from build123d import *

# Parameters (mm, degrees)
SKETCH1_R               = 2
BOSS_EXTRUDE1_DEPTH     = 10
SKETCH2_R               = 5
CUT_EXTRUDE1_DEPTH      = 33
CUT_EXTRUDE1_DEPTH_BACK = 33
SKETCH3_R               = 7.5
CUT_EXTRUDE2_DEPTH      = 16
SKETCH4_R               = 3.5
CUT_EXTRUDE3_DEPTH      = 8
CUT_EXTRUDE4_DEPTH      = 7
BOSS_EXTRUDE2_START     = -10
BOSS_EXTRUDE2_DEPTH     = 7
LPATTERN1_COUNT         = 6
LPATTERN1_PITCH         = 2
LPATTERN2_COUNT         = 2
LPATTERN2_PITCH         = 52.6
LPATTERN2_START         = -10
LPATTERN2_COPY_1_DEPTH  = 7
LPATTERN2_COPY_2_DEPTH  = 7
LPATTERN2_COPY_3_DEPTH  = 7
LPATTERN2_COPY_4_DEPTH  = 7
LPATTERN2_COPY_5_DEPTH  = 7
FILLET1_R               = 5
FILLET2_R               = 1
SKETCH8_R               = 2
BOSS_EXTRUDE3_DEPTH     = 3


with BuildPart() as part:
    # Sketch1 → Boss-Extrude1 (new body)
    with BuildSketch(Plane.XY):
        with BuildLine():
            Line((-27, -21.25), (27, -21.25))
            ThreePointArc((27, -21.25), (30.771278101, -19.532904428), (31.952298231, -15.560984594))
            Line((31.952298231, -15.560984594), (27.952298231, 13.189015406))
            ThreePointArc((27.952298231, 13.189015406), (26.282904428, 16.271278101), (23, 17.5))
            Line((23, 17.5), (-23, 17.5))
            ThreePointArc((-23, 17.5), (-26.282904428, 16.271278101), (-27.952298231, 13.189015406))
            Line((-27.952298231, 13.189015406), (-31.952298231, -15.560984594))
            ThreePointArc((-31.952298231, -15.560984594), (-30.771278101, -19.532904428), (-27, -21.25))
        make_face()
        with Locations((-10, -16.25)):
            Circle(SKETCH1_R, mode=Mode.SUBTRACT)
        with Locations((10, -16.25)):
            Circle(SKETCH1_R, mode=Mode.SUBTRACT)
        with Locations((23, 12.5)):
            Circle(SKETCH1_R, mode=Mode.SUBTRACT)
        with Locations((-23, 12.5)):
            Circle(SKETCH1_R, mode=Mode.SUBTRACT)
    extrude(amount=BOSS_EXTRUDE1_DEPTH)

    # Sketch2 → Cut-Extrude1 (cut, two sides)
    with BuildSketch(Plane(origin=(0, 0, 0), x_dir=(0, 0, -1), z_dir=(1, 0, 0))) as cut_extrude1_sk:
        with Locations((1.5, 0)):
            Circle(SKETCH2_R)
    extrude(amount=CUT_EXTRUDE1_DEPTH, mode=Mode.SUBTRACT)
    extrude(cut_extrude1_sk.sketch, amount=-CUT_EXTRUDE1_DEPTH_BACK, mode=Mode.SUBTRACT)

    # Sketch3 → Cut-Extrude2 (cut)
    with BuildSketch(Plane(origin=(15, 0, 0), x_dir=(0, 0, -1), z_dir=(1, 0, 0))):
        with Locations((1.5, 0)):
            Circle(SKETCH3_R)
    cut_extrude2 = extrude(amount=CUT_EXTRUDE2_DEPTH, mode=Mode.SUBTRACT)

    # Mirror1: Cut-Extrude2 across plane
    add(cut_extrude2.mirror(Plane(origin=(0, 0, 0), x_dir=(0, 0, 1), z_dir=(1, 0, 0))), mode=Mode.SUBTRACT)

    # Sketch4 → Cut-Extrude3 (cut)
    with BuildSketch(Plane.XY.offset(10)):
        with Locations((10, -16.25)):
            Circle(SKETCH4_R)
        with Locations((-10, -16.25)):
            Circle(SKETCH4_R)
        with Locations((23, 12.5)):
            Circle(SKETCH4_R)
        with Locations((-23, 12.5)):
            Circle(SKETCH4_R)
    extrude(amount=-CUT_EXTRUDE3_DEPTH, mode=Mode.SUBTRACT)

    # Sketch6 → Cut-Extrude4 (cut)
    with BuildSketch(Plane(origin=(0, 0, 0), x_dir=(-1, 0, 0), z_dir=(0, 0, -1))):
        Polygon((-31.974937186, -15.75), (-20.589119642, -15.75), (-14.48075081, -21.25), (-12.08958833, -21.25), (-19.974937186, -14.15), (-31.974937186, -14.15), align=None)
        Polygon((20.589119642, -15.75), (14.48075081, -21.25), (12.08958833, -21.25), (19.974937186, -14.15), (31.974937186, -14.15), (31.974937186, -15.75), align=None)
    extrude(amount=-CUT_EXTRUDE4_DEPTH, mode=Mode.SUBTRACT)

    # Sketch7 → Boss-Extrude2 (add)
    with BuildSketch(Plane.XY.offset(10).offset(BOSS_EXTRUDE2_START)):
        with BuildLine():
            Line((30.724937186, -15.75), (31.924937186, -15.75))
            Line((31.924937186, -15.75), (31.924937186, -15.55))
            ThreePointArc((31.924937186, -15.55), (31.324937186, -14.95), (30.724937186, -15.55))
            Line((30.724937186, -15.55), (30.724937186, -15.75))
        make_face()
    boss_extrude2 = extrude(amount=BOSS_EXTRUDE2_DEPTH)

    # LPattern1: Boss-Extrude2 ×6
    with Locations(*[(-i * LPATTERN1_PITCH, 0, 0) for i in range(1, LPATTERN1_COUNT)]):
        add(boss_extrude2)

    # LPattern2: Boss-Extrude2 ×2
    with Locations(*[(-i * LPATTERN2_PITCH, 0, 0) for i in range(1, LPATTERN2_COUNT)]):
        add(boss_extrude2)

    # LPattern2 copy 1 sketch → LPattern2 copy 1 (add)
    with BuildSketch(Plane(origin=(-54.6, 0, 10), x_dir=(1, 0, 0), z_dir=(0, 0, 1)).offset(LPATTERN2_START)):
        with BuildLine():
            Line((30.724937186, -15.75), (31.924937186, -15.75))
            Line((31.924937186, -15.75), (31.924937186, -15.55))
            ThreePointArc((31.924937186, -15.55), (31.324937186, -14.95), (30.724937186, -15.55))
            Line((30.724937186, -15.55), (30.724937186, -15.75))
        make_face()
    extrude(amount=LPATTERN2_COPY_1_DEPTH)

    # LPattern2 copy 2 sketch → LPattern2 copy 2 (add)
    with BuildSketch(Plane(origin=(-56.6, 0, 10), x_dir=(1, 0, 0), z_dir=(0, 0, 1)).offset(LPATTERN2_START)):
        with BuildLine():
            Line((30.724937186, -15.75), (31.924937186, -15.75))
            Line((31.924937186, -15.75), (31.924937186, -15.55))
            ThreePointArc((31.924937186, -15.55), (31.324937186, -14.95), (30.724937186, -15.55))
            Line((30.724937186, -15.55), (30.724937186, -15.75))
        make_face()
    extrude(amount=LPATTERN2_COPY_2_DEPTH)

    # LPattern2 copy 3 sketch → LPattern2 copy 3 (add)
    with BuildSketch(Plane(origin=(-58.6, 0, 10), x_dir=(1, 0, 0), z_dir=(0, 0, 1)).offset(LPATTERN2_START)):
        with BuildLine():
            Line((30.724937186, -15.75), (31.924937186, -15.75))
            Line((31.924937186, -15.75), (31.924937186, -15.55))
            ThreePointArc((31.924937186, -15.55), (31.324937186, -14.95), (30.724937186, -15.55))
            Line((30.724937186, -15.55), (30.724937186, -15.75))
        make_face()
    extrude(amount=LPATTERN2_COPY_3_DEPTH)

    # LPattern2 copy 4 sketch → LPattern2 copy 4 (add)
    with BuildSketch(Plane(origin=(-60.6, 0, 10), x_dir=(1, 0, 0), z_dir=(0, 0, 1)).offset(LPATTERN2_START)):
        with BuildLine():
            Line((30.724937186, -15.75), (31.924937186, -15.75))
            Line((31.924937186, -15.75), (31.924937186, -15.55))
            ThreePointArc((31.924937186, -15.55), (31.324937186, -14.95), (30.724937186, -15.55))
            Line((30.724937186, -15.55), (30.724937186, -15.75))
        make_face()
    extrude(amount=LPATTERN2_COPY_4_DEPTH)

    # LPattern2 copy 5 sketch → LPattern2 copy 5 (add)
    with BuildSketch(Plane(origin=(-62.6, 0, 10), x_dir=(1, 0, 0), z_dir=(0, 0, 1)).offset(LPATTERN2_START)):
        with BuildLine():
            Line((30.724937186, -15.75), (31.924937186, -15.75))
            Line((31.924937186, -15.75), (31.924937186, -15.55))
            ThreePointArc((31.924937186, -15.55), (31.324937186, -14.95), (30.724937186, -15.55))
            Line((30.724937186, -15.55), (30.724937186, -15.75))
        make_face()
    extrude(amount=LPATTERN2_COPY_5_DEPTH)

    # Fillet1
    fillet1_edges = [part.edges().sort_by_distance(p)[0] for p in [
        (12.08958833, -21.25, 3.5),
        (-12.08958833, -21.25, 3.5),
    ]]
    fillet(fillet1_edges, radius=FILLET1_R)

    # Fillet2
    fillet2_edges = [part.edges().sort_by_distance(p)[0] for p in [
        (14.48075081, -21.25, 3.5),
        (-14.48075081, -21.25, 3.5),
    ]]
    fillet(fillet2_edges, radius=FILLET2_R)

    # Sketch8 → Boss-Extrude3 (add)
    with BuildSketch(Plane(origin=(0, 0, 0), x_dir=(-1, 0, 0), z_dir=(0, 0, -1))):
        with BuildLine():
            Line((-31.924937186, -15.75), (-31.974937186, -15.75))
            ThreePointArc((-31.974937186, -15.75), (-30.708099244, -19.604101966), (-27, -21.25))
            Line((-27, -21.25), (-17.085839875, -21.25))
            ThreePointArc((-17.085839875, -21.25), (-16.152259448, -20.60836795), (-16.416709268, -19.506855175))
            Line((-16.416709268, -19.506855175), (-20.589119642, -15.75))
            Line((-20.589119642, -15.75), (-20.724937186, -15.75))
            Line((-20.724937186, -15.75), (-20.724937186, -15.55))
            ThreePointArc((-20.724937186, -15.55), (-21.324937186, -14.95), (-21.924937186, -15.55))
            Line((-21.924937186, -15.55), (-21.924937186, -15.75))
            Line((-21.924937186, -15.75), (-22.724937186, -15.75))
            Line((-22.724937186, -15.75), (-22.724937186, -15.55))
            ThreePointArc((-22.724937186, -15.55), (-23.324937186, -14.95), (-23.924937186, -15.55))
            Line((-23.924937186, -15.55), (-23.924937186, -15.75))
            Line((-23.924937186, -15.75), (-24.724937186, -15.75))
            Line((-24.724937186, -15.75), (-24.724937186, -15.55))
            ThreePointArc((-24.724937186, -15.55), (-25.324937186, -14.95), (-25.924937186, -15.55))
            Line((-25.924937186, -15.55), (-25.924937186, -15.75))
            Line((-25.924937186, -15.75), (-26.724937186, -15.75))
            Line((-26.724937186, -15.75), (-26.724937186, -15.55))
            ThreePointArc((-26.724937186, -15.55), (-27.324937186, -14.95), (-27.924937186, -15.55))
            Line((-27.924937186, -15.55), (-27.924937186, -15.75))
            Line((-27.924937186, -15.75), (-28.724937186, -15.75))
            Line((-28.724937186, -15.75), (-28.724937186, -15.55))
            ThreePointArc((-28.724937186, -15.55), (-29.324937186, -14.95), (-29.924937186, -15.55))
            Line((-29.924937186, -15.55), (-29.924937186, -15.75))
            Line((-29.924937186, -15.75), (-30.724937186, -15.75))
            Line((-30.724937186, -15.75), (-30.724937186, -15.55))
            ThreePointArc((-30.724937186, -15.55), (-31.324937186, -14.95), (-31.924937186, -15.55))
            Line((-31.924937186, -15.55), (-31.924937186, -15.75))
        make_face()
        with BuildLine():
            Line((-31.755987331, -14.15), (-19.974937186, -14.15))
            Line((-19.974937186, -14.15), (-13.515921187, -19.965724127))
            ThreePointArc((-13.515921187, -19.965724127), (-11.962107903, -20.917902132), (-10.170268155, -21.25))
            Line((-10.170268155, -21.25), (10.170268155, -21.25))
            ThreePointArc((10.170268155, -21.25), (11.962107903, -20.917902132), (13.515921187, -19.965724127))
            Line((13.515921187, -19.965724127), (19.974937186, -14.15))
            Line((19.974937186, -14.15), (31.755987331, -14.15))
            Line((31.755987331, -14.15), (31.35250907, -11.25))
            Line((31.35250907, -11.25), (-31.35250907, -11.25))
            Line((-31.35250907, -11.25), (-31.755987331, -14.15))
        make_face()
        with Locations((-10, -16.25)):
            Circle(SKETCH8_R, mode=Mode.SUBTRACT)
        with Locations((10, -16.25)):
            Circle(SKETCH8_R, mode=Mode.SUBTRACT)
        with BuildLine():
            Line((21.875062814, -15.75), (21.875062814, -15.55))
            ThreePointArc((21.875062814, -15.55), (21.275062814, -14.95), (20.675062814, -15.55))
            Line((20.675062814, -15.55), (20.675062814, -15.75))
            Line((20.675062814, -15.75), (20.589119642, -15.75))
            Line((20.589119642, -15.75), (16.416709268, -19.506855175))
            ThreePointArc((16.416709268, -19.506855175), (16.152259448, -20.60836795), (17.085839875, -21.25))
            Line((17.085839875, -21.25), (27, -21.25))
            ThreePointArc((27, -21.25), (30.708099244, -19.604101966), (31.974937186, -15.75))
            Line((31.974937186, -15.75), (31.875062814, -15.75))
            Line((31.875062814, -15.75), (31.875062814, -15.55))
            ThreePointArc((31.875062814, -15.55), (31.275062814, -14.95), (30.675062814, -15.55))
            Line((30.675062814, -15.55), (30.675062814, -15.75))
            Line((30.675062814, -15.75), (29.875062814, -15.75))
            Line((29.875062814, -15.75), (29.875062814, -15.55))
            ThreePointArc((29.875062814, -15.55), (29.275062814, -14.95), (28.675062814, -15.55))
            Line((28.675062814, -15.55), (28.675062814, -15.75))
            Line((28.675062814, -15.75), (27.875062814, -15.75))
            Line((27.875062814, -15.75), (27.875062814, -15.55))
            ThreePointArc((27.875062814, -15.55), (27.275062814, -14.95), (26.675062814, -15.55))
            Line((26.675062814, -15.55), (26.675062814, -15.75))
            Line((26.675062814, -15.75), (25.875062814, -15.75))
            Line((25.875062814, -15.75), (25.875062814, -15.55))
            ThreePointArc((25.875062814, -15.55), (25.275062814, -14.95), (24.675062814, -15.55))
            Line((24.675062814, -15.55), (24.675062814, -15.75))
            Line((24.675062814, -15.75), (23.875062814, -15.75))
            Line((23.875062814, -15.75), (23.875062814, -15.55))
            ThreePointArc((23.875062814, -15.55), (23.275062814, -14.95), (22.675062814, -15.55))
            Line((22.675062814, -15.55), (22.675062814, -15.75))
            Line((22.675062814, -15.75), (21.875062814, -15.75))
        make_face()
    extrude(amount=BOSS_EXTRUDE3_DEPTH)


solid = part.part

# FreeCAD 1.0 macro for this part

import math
import FreeCAD as App
import Part
import Sketcher
Q = App.Units.Quantity


def edges_at(feature, points):
    """Names of the edges that pass closest to the given points."""
    edges = feature.Shape.Edges
    near = lambda p: min(range(len(edges)), key=lambda i: edges[i].distToShape(Part.Vertex(*p))[0])
    return sorted({f"Edge{near(p) + 1}" for p in points})


def add_polygon(sketch, points):
    """Adds a closed chain of lines whose ends are joined by coincident constraints."""
    first, n = sketch.GeometryCount, len(points)
    for a, b in zip(points, points[1:] + points[:1]):
        sketch.addGeometry(Part.LineSegment(App.Vector(*a, 0), App.Vector(*b, 0)), False)
    for i in range(n):
        sketch.addConstraint(Sketcher.Constraint("Coincident", first + i, 2, first + (i + 1) % n, 1))

doc = App.newDocument("Part")
body = doc.addObject("PartDesign::Body", "Body")

sketch1 = body.newObject("Sketcher::SketchObject", "Sketch")
sketch1.AttachmentSupport = (doc.getObject("XY_Plane"), [""])
sketch1.MapMode = "FlatFace"
sketch1.addGeometry(Part.LineSegment(App.Vector(-27, -21.2, 0), App.Vector(27, -21.2, 0)), False)
sketch1.addGeometry(Part.ArcOfCircle(Part.Circle(App.Vector(27, -16.2, 0), App.Vector(0, 0, 1), 5), math.radians(-90), math.radians(8)), False)
sketch1.addGeometry(Part.LineSegment(App.Vector(32, -15.6, 0), App.Vector(28, 13.2, 0)), False)
sketch1.addGeometry(Part.ArcOfCircle(Part.Circle(App.Vector(23, 12.5, 0), App.Vector(0, 0, 1), 5), math.radians(8), math.radians(90)), False)
sketch1.addGeometry(Part.LineSegment(App.Vector(23, 17.5, 0), App.Vector(-23, 17.5, 0)), False)
sketch1.addGeometry(Part.ArcOfCircle(Part.Circle(App.Vector(-23, 12.5, 0), App.Vector(0, 0, 1), 5), math.radians(90), math.radians(172)), False)
sketch1.addGeometry(Part.LineSegment(App.Vector(-28, 13.2, 0), App.Vector(-32, -15.6, 0)), False)
sketch1.addGeometry(Part.ArcOfCircle(Part.Circle(App.Vector(-27, -16.2, 0), App.Vector(0, 0, 1), 5), math.radians(172), math.radians(270)), False)
sketch1.addGeometry(Part.Circle(App.Vector(-10, -16.2, 0), App.Vector(0, 0, 1), 2), False)
sketch1.addGeometry(Part.Circle(App.Vector(10, -16.2, 0), App.Vector(0, 0, 1), 2), False)
sketch1.addGeometry(Part.Circle(App.Vector(-23, 12.5, 0), App.Vector(0, 0, 1), 2), False)
sketch1.addGeometry(Part.Circle(App.Vector(23, 12.5, 0), App.Vector(0, 0, 1), 2), False)
sketch1.addConstraint(Sketcher.Constraint("Tangent", 0, 2, 1, 1))
sketch1.addConstraint(Sketcher.Constraint("Tangent", 1, 2, 2, 1))
sketch1.addConstraint(Sketcher.Constraint("Tangent", 2, 2, 3, 1))
sketch1.addConstraint(Sketcher.Constraint("Tangent", 3, 2, 4, 1))
sketch1.addConstraint(Sketcher.Constraint("Tangent", 4, 2, 5, 1))
sketch1.addConstraint(Sketcher.Constraint("Tangent", 5, 2, 6, 1))
sketch1.addConstraint(Sketcher.Constraint("Tangent", 6, 2, 7, 1))
sketch1.addConstraint(Sketcher.Constraint("Tangent", 7, 2, 0, 1))
sketch1.addConstraint(Sketcher.Constraint("Horizontal", 0))
sketch1.addConstraint(Sketcher.Constraint("Horizontal", 4))
sketch1.addConstraint(Sketcher.Constraint("Coincident", 10, 3, 5, 3))
sketch1.addConstraint(Sketcher.Constraint("Coincident", 11, 3, 3, 3))
sketch1.addConstraint(Sketcher.Constraint("Equal", 1, 3))
sketch1.addConstraint(Sketcher.Constraint("Equal", 3, 5))
sketch1.addConstraint(Sketcher.Constraint("Equal", 5, 7))
sketch1.addConstraint(Sketcher.Constraint("Equal", 8, 9))
sketch1.addConstraint(Sketcher.Constraint("Equal", 9, 10))
sketch1.addConstraint(Sketcher.Constraint("Equal", 10, 11))
sketch1.addConstraint(Sketcher.Constraint("Symmetric", 8, 3, 9, 3, -2))
sketch1.addConstraint(Sketcher.Constraint("Symmetric", 2, 2, 5, 2, -2))
sketch1.addConstraint(Sketcher.Constraint("Horizontal", 7, 3, 8, 3))
sketch1.addConstraint(Sketcher.Constraint("Diameter", 8, Q("4 mm")))
sketch1.addConstraint(Sketcher.Constraint("Radius", 1, Q("5 mm")))
sketch1.addConstraint(Sketcher.Constraint("DistanceX", 0, 1, 0, 2, Q("54 mm")))
sketch1.addConstraint(Sketcher.Constraint("DistanceX", 4, 2, 4, 1, Q("46 mm")))
sketch1.addConstraint(Sketcher.Constraint("DistanceX", 8, 3, -1, 1, Q("10 mm")))
sketch1.addConstraint(Sketcher.Constraint("DistanceY", -1, 1, 3, 3, Q("12.5 mm")))
sketch1.addConstraint(Sketcher.Constraint("DistanceY", 1, 3, -1, 1, Q("16.25 mm")))
pad1 = body.newObject("PartDesign::Pad", "Pad")
pad1.Profile = sketch1
pad1.Length = 10

sketch2 = body.newObject("Sketcher::SketchObject", "Sketch001")
sketch2.AttachmentSupport = (doc.getObject("YZ_Plane"), [""])
sketch2.MapMode = "FlatFace"
sketch2.addGeometry(Part.Circle(App.Vector(0, -2, 0), App.Vector(0, 0, 1), 5), False)
sketch2.addConstraint(Sketcher.Constraint("PointOnObject", 0, 3, -2))
sketch2.addConstraint(Sketcher.Constraint("Diameter", 0, Q("10 mm")))
sketch2.addConstraint(Sketcher.Constraint("DistanceY", 0, 3, -1, 1, Q("1.5 mm")))
pocket1 = body.newObject("PartDesign::Pocket", "Pocket")
pocket1.Profile = sketch2
pocket1.Type = "ThroughAll"
pocket1.Midplane = True

sketch3 = body.newObject("Sketcher::SketchObject", "Sketch002")
sketch3.AttachmentSupport = (doc.getObject("YZ_Plane"), [""])
sketch3.MapMode = "FlatFace"
sketch3.AttachmentOffset = App.Placement(App.Vector(0, 0, 15), App.Rotation())
sketch3.addGeometry(Part.Circle(App.Vector(0, -2, 0), App.Vector(0, 0, 1), 8), False)
sketch3.addConstraint(Sketcher.Constraint("PointOnObject", 0, 3, -2))
sketch3.addConstraint(Sketcher.Constraint("Diameter", 0, Q("15 mm")))
sketch3.addConstraint(Sketcher.Constraint("DistanceY", 0, 3, -1, 1, Q("1.5 mm")))
pocket2 = body.newObject("PartDesign::Pocket", "Pocket001")
pocket2.Profile = sketch3
pocket2.Length = 16
pocket2.Reversed = True
doc.recompute()

mirrored = body.newObject("PartDesign::Mirrored", "Mirrored")
mirrored.Originals = [pocket2]
mirrored.MirrorPlane = (doc.getObject("YZ_Plane"), [""])
body.Tip = mirrored

sketch4 = body.newObject("Sketcher::SketchObject", "Sketch003")
sketch4.AttachmentSupport = (doc.getObject("XY_Plane"), [""])
sketch4.MapMode = "FlatFace"
sketch4.AttachmentOffset = App.Placement(App.Vector(0, 0, 10), App.Rotation())
sketch4.addGeometry(Part.Circle(App.Vector(10, -16.2, 0), App.Vector(0, 0, 1), 3.5), False)
sketch4.addGeometry(Part.Circle(App.Vector(-10, -16.2, 0), App.Vector(0, 0, 1), 3.5), False)
sketch4.addGeometry(Part.Circle(App.Vector(23, 12.5, 0), App.Vector(0, 0, 1), 3.5), False)
sketch4.addGeometry(Part.Circle(App.Vector(-23, 12.5, 0), App.Vector(0, 0, 1), 3.5), False)
sketch4.addConstraint(Sketcher.Constraint("Equal", 0, 1))
sketch4.addConstraint(Sketcher.Constraint("Equal", 1, 2))
sketch4.addConstraint(Sketcher.Constraint("Equal", 2, 3))
sketch4.addConstraint(Sketcher.Constraint("Symmetric", 0, 3, 1, 3, -2))
sketch4.addConstraint(Sketcher.Constraint("Symmetric", 2, 3, 3, 3, -2))
sketch4.addConstraint(Sketcher.Constraint("Diameter", 0, Q("7 mm")))
sketch4.addConstraint(Sketcher.Constraint("DistanceX", -1, 1, 0, 3, Q("10 mm")))
sketch4.addConstraint(Sketcher.Constraint("DistanceX", -1, 1, 2, 3, Q("23 mm")))
sketch4.addConstraint(Sketcher.Constraint("DistanceY", -1, 1, 2, 3, Q("12.5 mm")))
sketch4.addConstraint(Sketcher.Constraint("DistanceY", 0, 3, -1, 1, Q("16.25 mm")))
pocket3 = body.newObject("PartDesign::Pocket", "Pocket002")
pocket3.Profile = sketch4
pocket3.Length = 8

sketch5 = body.newObject("Sketcher::SketchObject", "Sketch004")
sketch5.AttachmentSupport = (doc.getObject("XY_Plane"), [""])
sketch5.MapMode = "FlatFace"
add_polygon(sketch5, [(32, -15.8), (20.6, -15.8), (14.5, -21.2), (12.1, -21.2), (20, -14.2), (32, -14.2)])
add_polygon(sketch5, [(-14.5, -21.2), (-20.6, -15.8), (-32, -15.8), (-32, -14.2), (-20, -14.2), (-12.1, -21.2)])
sketch5.addConstraint(Sketcher.Constraint("Horizontal", 0))
sketch5.addConstraint(Sketcher.Constraint("Horizontal", 2))
sketch5.addConstraint(Sketcher.Constraint("Horizontal", 4))
sketch5.addConstraint(Sketcher.Constraint("Vertical", 5))
sketch5.addConstraint(Sketcher.Constraint("Horizontal", 7))
sketch5.addConstraint(Sketcher.Constraint("Vertical", 8))
sketch5.addConstraint(Sketcher.Constraint("Horizontal", 9))
sketch5.addConstraint(Sketcher.Constraint("Horizontal", 11))
sketch5.addConstraint(Sketcher.Constraint("Symmetric", 0, 2, 6, 2, -2))
sketch5.addConstraint(Sketcher.Constraint("Symmetric", 4, 2, 8, 2, -2))
sketch5.addConstraint(Sketcher.Constraint("Symmetric", 2, 2, 10, 2, -2))
sketch5.addConstraint(Sketcher.Constraint("Parallel", 1, 3))
sketch5.addConstraint(Sketcher.Constraint("Parallel", 6, 10))
sketch5.addConstraint(Sketcher.Constraint("Equal", 4, 9))
sketch5.addConstraint(Sketcher.Constraint("DistanceX", 4, 1, 4, 2, Q("12 mm")))
sketch5.addConstraint(Sketcher.Constraint("Angle", 1, Q("-138 deg")))
sketch5.addConstraint(Sketcher.Constraint("DistanceY", 5, 2, 5, 1, Q("1.6 mm")))
sketch5.addConstraint(Sketcher.Constraint("DistanceY", 1, 2, 0, 2, Q("5.5 mm")))
sketch5.addConstraint(Sketcher.Constraint("DistanceY", 0, 2, -1, 1, Q("15.75 mm")))
sketch5.addConstraint(Sketcher.Constraint("DistanceX", 0, 2, 0, 1, Q("11.385818 mm")))
sketch5.addConstraint(Sketcher.Constraint("DistanceX", -1, 1, 0, 2, Q("20.58912 mm")))
pocket4 = body.newObject("PartDesign::Pocket", "Pocket003")
pocket4.Profile = sketch5
pocket4.Length = 7
pocket4.Reversed = True

sketch6 = body.newObject("Sketcher::SketchObject", "Sketch005")
sketch6.AttachmentSupport = (doc.getObject("XY_Plane"), [""])
sketch6.MapMode = "FlatFace"
sketch6.addGeometry(Part.LineSegment(App.Vector(30.72, -15.75, 0), App.Vector(31.92, -15.75, 0)), False)
sketch6.addGeometry(Part.LineSegment(App.Vector(31.92, -15.75, 0), App.Vector(31.92, -15.55, 0)), False)
sketch6.addGeometry(Part.ArcOfCircle(Part.Circle(App.Vector(31.32, -15.55, 0), App.Vector(0, 0, 1), 0.6), math.radians(0), math.radians(180)), False)
sketch6.addGeometry(Part.LineSegment(App.Vector(30.72, -15.55, 0), App.Vector(30.72, -15.75, 0)), False)
sketch6.addConstraint(Sketcher.Constraint("Coincident", 0, 2, 1, 1))
sketch6.addConstraint(Sketcher.Constraint("Tangent", 1, 2, 2, 1))
sketch6.addConstraint(Sketcher.Constraint("Tangent", 2, 2, 3, 1))
sketch6.addConstraint(Sketcher.Constraint("Coincident", 3, 2, 0, 1))
sketch6.addConstraint(Sketcher.Constraint("Horizontal", 0))
sketch6.addConstraint(Sketcher.Constraint("Vertical", 1))
sketch6.addConstraint(Sketcher.Constraint("Vertical", 3))
sketch6.addConstraint(Sketcher.Constraint("Radius", 2, Q("0.6 mm")))
sketch6.addConstraint(Sketcher.Constraint("DistanceY", 1, 1, 1, 2, Q("0.2 mm")))
sketch6.addConstraint(Sketcher.Constraint("DistanceY", 2, 3, -1, 1, Q("15.55 mm")))
sketch6.addConstraint(Sketcher.Constraint("DistanceX", -1, 1, 2, 3, Q("31.324937 mm")))
pad2 = body.newObject("PartDesign::Pad", "Pad001")
pad2.Profile = sketch6
pad2.Length = 7
doc.recompute()

linearpattern = body.newObject("PartDesign::LinearPattern", "LinearPattern")
linearpattern.Originals = [pad2]
linearpattern.Direction = (doc.getObject("X_Axis"), [""])
linearpattern.Mode = "offset"
linearpattern.Offset = 2
linearpattern.Occurrences = 6
linearpattern.Reversed = True
body.Tip = linearpattern
doc.recompute()

linearpattern2 = body.newObject("PartDesign::LinearPattern", "LinearPattern001")
linearpattern2.Originals = [pad2]
linearpattern2.Direction = (doc.getObject("X_Axis"), [""])
linearpattern2.Mode = "offset"
linearpattern2.Offset = 52.6
linearpattern2.Occurrences = 2
linearpattern2.Reversed = True
body.Tip = linearpattern2

sketch7 = body.newObject("Sketcher::SketchObject", "Sketch006")
sketch7.AttachmentSupport = (doc.getObject("XY_Plane"), [""])
sketch7.MapMode = "FlatFace"
sketch7.addGeometry(Part.LineSegment(App.Vector(-23.88, -15.75, 0), App.Vector(-22.68, -15.75, 0)), False)
sketch7.addGeometry(Part.LineSegment(App.Vector(-22.68, -15.75, 0), App.Vector(-22.68, -15.55, 0)), False)
sketch7.addGeometry(Part.ArcOfCircle(Part.Circle(App.Vector(-23.28, -15.55, 0), App.Vector(0, 0, 1), 0.6), math.radians(0), math.radians(180)), False)
sketch7.addGeometry(Part.LineSegment(App.Vector(-23.88, -15.55, 0), App.Vector(-23.88, -15.75, 0)), False)
sketch7.addConstraint(Sketcher.Constraint("Coincident", 0, 2, 1, 1))
sketch7.addConstraint(Sketcher.Constraint("Tangent", 1, 2, 2, 1))
sketch7.addConstraint(Sketcher.Constraint("Tangent", 2, 2, 3, 1))
sketch7.addConstraint(Sketcher.Constraint("Coincident", 3, 2, 0, 1))
sketch7.addConstraint(Sketcher.Constraint("Horizontal", 0))
sketch7.addConstraint(Sketcher.Constraint("Vertical", 1))
sketch7.addConstraint(Sketcher.Constraint("Vertical", 3))
sketch7.addConstraint(Sketcher.Constraint("Radius", 2, Q("0.6 mm")))
sketch7.addConstraint(Sketcher.Constraint("DistanceY", 1, 1, 1, 2, Q("0.2 mm")))
sketch7.addConstraint(Sketcher.Constraint("DistanceY", 2, 3, -1, 1, Q("15.55 mm")))
sketch7.addConstraint(Sketcher.Constraint("DistanceX", 2, 3, -1, 1, Q("23.275063 mm")))
pad3 = body.newObject("PartDesign::Pad", "Pad002")
pad3.Profile = sketch7
pad3.Length = 7

sketch8 = body.newObject("Sketcher::SketchObject", "Sketch007")
sketch8.AttachmentSupport = (doc.getObject("XY_Plane"), [""])
sketch8.MapMode = "FlatFace"
sketch8.addGeometry(Part.LineSegment(App.Vector(-25.88, -15.75, 0), App.Vector(-24.68, -15.75, 0)), False)
sketch8.addGeometry(Part.LineSegment(App.Vector(-24.68, -15.75, 0), App.Vector(-24.68, -15.55, 0)), False)
sketch8.addGeometry(Part.ArcOfCircle(Part.Circle(App.Vector(-25.28, -15.55, 0), App.Vector(0, 0, 1), 0.6), math.radians(0), math.radians(180)), False)
sketch8.addGeometry(Part.LineSegment(App.Vector(-25.88, -15.55, 0), App.Vector(-25.88, -15.75, 0)), False)
sketch8.addConstraint(Sketcher.Constraint("Coincident", 0, 2, 1, 1))
sketch8.addConstraint(Sketcher.Constraint("Tangent", 1, 2, 2, 1))
sketch8.addConstraint(Sketcher.Constraint("Tangent", 2, 2, 3, 1))
sketch8.addConstraint(Sketcher.Constraint("Coincident", 3, 2, 0, 1))
sketch8.addConstraint(Sketcher.Constraint("Horizontal", 0))
sketch8.addConstraint(Sketcher.Constraint("Vertical", 1))
sketch8.addConstraint(Sketcher.Constraint("Vertical", 3))
sketch8.addConstraint(Sketcher.Constraint("Radius", 2, Q("0.6 mm")))
sketch8.addConstraint(Sketcher.Constraint("DistanceY", 1, 1, 1, 2, Q("0.2 mm")))
sketch8.addConstraint(Sketcher.Constraint("DistanceY", 2, 3, -1, 1, Q("15.55 mm")))
sketch8.addConstraint(Sketcher.Constraint("DistanceX", 2, 3, -1, 1, Q("25.275063 mm")))
pad4 = body.newObject("PartDesign::Pad", "Pad003")
pad4.Profile = sketch8
pad4.Length = 7

sketch9 = body.newObject("Sketcher::SketchObject", "Sketch008")
sketch9.AttachmentSupport = (doc.getObject("XY_Plane"), [""])
sketch9.MapMode = "FlatFace"
sketch9.addGeometry(Part.LineSegment(App.Vector(-27.88, -15.75, 0), App.Vector(-26.68, -15.75, 0)), False)
sketch9.addGeometry(Part.LineSegment(App.Vector(-26.68, -15.75, 0), App.Vector(-26.68, -15.55, 0)), False)
sketch9.addGeometry(Part.ArcOfCircle(Part.Circle(App.Vector(-27.28, -15.55, 0), App.Vector(0, 0, 1), 0.6), math.radians(0), math.radians(180)), False)
sketch9.addGeometry(Part.LineSegment(App.Vector(-27.88, -15.55, 0), App.Vector(-27.88, -15.75, 0)), False)
sketch9.addConstraint(Sketcher.Constraint("Coincident", 0, 2, 1, 1))
sketch9.addConstraint(Sketcher.Constraint("Tangent", 1, 2, 2, 1))
sketch9.addConstraint(Sketcher.Constraint("Tangent", 2, 2, 3, 1))
sketch9.addConstraint(Sketcher.Constraint("Coincident", 3, 2, 0, 1))
sketch9.addConstraint(Sketcher.Constraint("Horizontal", 0))
sketch9.addConstraint(Sketcher.Constraint("Vertical", 1))
sketch9.addConstraint(Sketcher.Constraint("Vertical", 3))
sketch9.addConstraint(Sketcher.Constraint("Radius", 2, Q("0.6 mm")))
sketch9.addConstraint(Sketcher.Constraint("DistanceY", 1, 1, 1, 2, Q("0.2 mm")))
sketch9.addConstraint(Sketcher.Constraint("DistanceY", 2, 3, -1, 1, Q("15.55 mm")))
sketch9.addConstraint(Sketcher.Constraint("DistanceX", 2, 3, -1, 1, Q("27.275063 mm")))
pad5 = body.newObject("PartDesign::Pad", "Pad004")
pad5.Profile = sketch9
pad5.Length = 7

sketch10 = body.newObject("Sketcher::SketchObject", "Sketch009")
sketch10.AttachmentSupport = (doc.getObject("XY_Plane"), [""])
sketch10.MapMode = "FlatFace"
sketch10.addGeometry(Part.LineSegment(App.Vector(-29.88, -15.75, 0), App.Vector(-28.68, -15.75, 0)), False)
sketch10.addGeometry(Part.LineSegment(App.Vector(-28.68, -15.75, 0), App.Vector(-28.68, -15.55, 0)), False)
sketch10.addGeometry(Part.ArcOfCircle(Part.Circle(App.Vector(-29.28, -15.55, 0), App.Vector(0, 0, 1), 0.6), math.radians(0), math.radians(180)), False)
sketch10.addGeometry(Part.LineSegment(App.Vector(-29.88, -15.55, 0), App.Vector(-29.88, -15.75, 0)), False)
sketch10.addConstraint(Sketcher.Constraint("Coincident", 0, 2, 1, 1))
sketch10.addConstraint(Sketcher.Constraint("Tangent", 1, 2, 2, 1))
sketch10.addConstraint(Sketcher.Constraint("Tangent", 2, 2, 3, 1))
sketch10.addConstraint(Sketcher.Constraint("Coincident", 3, 2, 0, 1))
sketch10.addConstraint(Sketcher.Constraint("Horizontal", 0))
sketch10.addConstraint(Sketcher.Constraint("Vertical", 1))
sketch10.addConstraint(Sketcher.Constraint("Vertical", 3))
sketch10.addConstraint(Sketcher.Constraint("Radius", 2, Q("0.6 mm")))
sketch10.addConstraint(Sketcher.Constraint("DistanceY", 1, 1, 1, 2, Q("0.2 mm")))
sketch10.addConstraint(Sketcher.Constraint("DistanceY", 2, 3, -1, 1, Q("15.55 mm")))
sketch10.addConstraint(Sketcher.Constraint("DistanceX", 2, 3, -1, 1, Q("29.275063 mm")))
pad6 = body.newObject("PartDesign::Pad", "Pad005")
pad6.Profile = sketch10
pad6.Length = 7

sketch11 = body.newObject("Sketcher::SketchObject", "Sketch010")
sketch11.AttachmentSupport = (doc.getObject("XY_Plane"), [""])
sketch11.MapMode = "FlatFace"
sketch11.addGeometry(Part.LineSegment(App.Vector(-31.88, -15.75, 0), App.Vector(-30.68, -15.75, 0)), False)
sketch11.addGeometry(Part.LineSegment(App.Vector(-30.68, -15.75, 0), App.Vector(-30.68, -15.55, 0)), False)
sketch11.addGeometry(Part.ArcOfCircle(Part.Circle(App.Vector(-31.28, -15.55, 0), App.Vector(0, 0, 1), 0.6), math.radians(0), math.radians(180)), False)
sketch11.addGeometry(Part.LineSegment(App.Vector(-31.88, -15.55, 0), App.Vector(-31.88, -15.75, 0)), False)
sketch11.addConstraint(Sketcher.Constraint("Coincident", 0, 2, 1, 1))
sketch11.addConstraint(Sketcher.Constraint("Tangent", 1, 2, 2, 1))
sketch11.addConstraint(Sketcher.Constraint("Tangent", 2, 2, 3, 1))
sketch11.addConstraint(Sketcher.Constraint("Coincident", 3, 2, 0, 1))
sketch11.addConstraint(Sketcher.Constraint("Horizontal", 0))
sketch11.addConstraint(Sketcher.Constraint("Vertical", 1))
sketch11.addConstraint(Sketcher.Constraint("Vertical", 3))
sketch11.addConstraint(Sketcher.Constraint("Radius", 2, Q("0.6 mm")))
sketch11.addConstraint(Sketcher.Constraint("DistanceY", 1, 1, 1, 2, Q("0.2 mm")))
sketch11.addConstraint(Sketcher.Constraint("DistanceY", 2, 3, -1, 1, Q("15.55 mm")))
sketch11.addConstraint(Sketcher.Constraint("DistanceX", 2, 3, -1, 1, Q("31.275063 mm")))
pad7 = body.newObject("PartDesign::Pad", "Pad006")
pad7.Profile = sketch11
pad7.Length = 7
doc.recompute()

fillet = body.newObject("PartDesign::Fillet", "Fillet")
fillet.Base = (pad7, edges_at(pad7, [(12.09, -21.25, 3.5), (-12.09, -21.25, 3.5)]))
fillet.Radius = 5
doc.recompute()

fillet2 = body.newObject("PartDesign::Fillet", "Fillet001")
fillet2.Base = (fillet, edges_at(fillet, [(14.481, -21.25, 3.5), (-14.481, -21.25, 3.5)]))
fillet2.Radius = 1

sketch12 = body.newObject("Sketcher::SketchObject", "Sketch011")
sketch12.AttachmentSupport = (doc.getObject("XY_Plane"), [""])
sketch12.MapMode = "FlatFace"
sketch12.addGeometry(Part.LineSegment(App.Vector(31.925, -15.75, 0), App.Vector(31.975, -15.75, 0)), False)
sketch12.addGeometry(Part.ArcOfCircle(Part.Circle(App.Vector(27, -16.25, 0), App.Vector(0, 0, 1), 5), math.radians(-90), math.radians(6)), False)
sketch12.addGeometry(Part.LineSegment(App.Vector(27, -21.25, 0), App.Vector(17.086, -21.25, 0)), False)
sketch12.addGeometry(Part.ArcOfCircle(Part.Circle(App.Vector(17.086, -20.25, 0), App.Vector(0, 0, 1), 1), math.radians(132), math.radians(270)), False)
sketch12.addGeometry(Part.LineSegment(App.Vector(16.417, -19.507, 0), App.Vector(20.589, -15.75, 0)), False)
sketch12.addGeometry(Part.LineSegment(App.Vector(20.589, -15.75, 0), App.Vector(20.725, -15.75, 0)), False)
sketch12.addGeometry(Part.LineSegment(App.Vector(20.725, -15.75, 0), App.Vector(20.725, -15.55, 0)), False)
sketch12.addGeometry(Part.ArcOfCircle(Part.Circle(App.Vector(21.325, -15.55, 0), App.Vector(0, 0, 1), 0.6), math.radians(0), math.radians(180)), False)
sketch12.addGeometry(Part.LineSegment(App.Vector(21.925, -15.55, 0), App.Vector(21.925, -15.75, 0)), False)
sketch12.addGeometry(Part.LineSegment(App.Vector(21.925, -15.75, 0), App.Vector(22.725, -15.75, 0)), False)
sketch12.addGeometry(Part.LineSegment(App.Vector(22.725, -15.75, 0), App.Vector(22.725, -15.55, 0)), False)
sketch12.addGeometry(Part.ArcOfCircle(Part.Circle(App.Vector(23.325, -15.55, 0), App.Vector(0, 0, 1), 0.6), math.radians(0), math.radians(180)), False)
sketch12.addGeometry(Part.LineSegment(App.Vector(23.925, -15.55, 0), App.Vector(23.925, -15.75, 0)), False)
sketch12.addGeometry(Part.LineSegment(App.Vector(23.925, -15.75, 0), App.Vector(24.725, -15.75, 0)), False)
sketch12.addGeometry(Part.LineSegment(App.Vector(24.725, -15.75, 0), App.Vector(24.725, -15.55, 0)), False)
sketch12.addGeometry(Part.ArcOfCircle(Part.Circle(App.Vector(25.325, -15.55, 0), App.Vector(0, 0, 1), 0.6), math.radians(0), math.radians(180)), False)
sketch12.addGeometry(Part.LineSegment(App.Vector(25.925, -15.55, 0), App.Vector(25.925, -15.75, 0)), False)
sketch12.addGeometry(Part.LineSegment(App.Vector(25.925, -15.75, 0), App.Vector(26.725, -15.75, 0)), False)
sketch12.addGeometry(Part.LineSegment(App.Vector(26.725, -15.75, 0), App.Vector(26.725, -15.55, 0)), False)
sketch12.addGeometry(Part.ArcOfCircle(Part.Circle(App.Vector(27.325, -15.55, 0), App.Vector(0, 0, 1), 0.6), math.radians(0), math.radians(180)), False)
sketch12.addGeometry(Part.LineSegment(App.Vector(27.925, -15.55, 0), App.Vector(27.925, -15.75, 0)), False)
sketch12.addGeometry(Part.LineSegment(App.Vector(27.925, -15.75, 0), App.Vector(28.725, -15.75, 0)), False)
sketch12.addGeometry(Part.LineSegment(App.Vector(28.725, -15.75, 0), App.Vector(28.725, -15.55, 0)), False)
sketch12.addGeometry(Part.ArcOfCircle(Part.Circle(App.Vector(29.325, -15.55, 0), App.Vector(0, 0, 1), 0.6), math.radians(0), math.radians(180)), False)
sketch12.addGeometry(Part.LineSegment(App.Vector(29.925, -15.55, 0), App.Vector(29.925, -15.75, 0)), False)
sketch12.addGeometry(Part.LineSegment(App.Vector(29.925, -15.75, 0), App.Vector(30.725, -15.75, 0)), False)
sketch12.addGeometry(Part.LineSegment(App.Vector(30.725, -15.75, 0), App.Vector(30.725, -15.55, 0)), False)
sketch12.addGeometry(Part.ArcOfCircle(Part.Circle(App.Vector(31.325, -15.55, 0), App.Vector(0, 0, 1), 0.6), math.radians(0), math.radians(180)), False)
sketch12.addGeometry(Part.LineSegment(App.Vector(31.925, -15.55, 0), App.Vector(31.925, -15.75, 0)), False)
sketch12.addGeometry(Part.LineSegment(App.Vector(31.756, -14.15, 0), App.Vector(19.975, -14.15, 0)), False)
sketch12.addGeometry(Part.LineSegment(App.Vector(19.975, -14.15, 0), App.Vector(13.516, -19.966, 0)), False)
sketch12.addGeometry(Part.ArcOfCircle(Part.Circle(App.Vector(10.17, -16.25, 0), App.Vector(0, 0, 1), 5), math.radians(-90), math.radians(-48)), False)
sketch12.addGeometry(Part.LineSegment(App.Vector(10.17, -21.25, 0), App.Vector(-10.17, -21.25, 0)), False)
sketch12.addGeometry(Part.ArcOfCircle(Part.Circle(App.Vector(-10.17, -16.25, 0), App.Vector(0, 0, 1), 5), math.radians(-132), math.radians(-90)), False)
sketch12.addGeometry(Part.LineSegment(App.Vector(-13.516, -19.966, 0), App.Vector(-19.975, -14.15, 0)), False)
sketch12.addGeometry(Part.LineSegment(App.Vector(-19.975, -14.15, 0), App.Vector(-31.756, -14.15, 0)), False)
sketch12.addGeometry(Part.LineSegment(App.Vector(-31.756, -14.15, 0), App.Vector(-31.353, -11.25, 0)), False)
sketch12.addGeometry(Part.LineSegment(App.Vector(-31.353, -11.25, 0), App.Vector(31.353, -11.25, 0)), False)
sketch12.addGeometry(Part.LineSegment(App.Vector(31.353, -11.25, 0), App.Vector(31.756, -14.15, 0)), False)
sketch12.addGeometry(Part.Circle(App.Vector(10, -16.25, 0), App.Vector(0, 0, 1), 2), False)
sketch12.addGeometry(Part.Circle(App.Vector(-10, -16.25, 0), App.Vector(0, 0, 1), 2), False)
sketch12.addGeometry(Part.LineSegment(App.Vector(-21.875, -15.75, 0), App.Vector(-21.875, -15.55, 0)), False)
sketch12.addGeometry(Part.ArcOfCircle(Part.Circle(App.Vector(-21.275, -15.55, 0), App.Vector(0, 0, 1), 0.6), math.radians(0), math.radians(180)), False)
sketch12.addGeometry(Part.LineSegment(App.Vector(-20.675, -15.55, 0), App.Vector(-20.675, -15.75, 0)), False)
sketch12.addGeometry(Part.LineSegment(App.Vector(-20.675, -15.75, 0), App.Vector(-20.589, -15.75, 0)), False)
sketch12.addGeometry(Part.LineSegment(App.Vector(-20.589, -15.75, 0), App.Vector(-16.417, -19.507, 0)), False)
sketch12.addGeometry(Part.ArcOfCircle(Part.Circle(App.Vector(-17.086, -20.25, 0), App.Vector(0, 0, 1), 1), math.radians(-90), math.radians(48)), False)
sketch12.addGeometry(Part.LineSegment(App.Vector(-17.086, -21.25, 0), App.Vector(-27, -21.25, 0)), False)
sketch12.addGeometry(Part.ArcOfCircle(Part.Circle(App.Vector(-27, -16.25, 0), App.Vector(0, 0, 1), 5), math.radians(174), math.radians(270)), False)
sketch12.addGeometry(Part.LineSegment(App.Vector(-31.975, -15.75, 0), App.Vector(-31.875, -15.75, 0)), False)
sketch12.addGeometry(Part.LineSegment(App.Vector(-31.875, -15.75, 0), App.Vector(-31.875, -15.55, 0)), False)
sketch12.addGeometry(Part.ArcOfCircle(Part.Circle(App.Vector(-31.275, -15.55, 0), App.Vector(0, 0, 1), 0.6), math.radians(0), math.radians(180)), False)
sketch12.addGeometry(Part.LineSegment(App.Vector(-30.675, -15.55, 0), App.Vector(-30.675, -15.75, 0)), False)
sketch12.addGeometry(Part.LineSegment(App.Vector(-30.675, -15.75, 0), App.Vector(-29.875, -15.75, 0)), False)
sketch12.addGeometry(Part.LineSegment(App.Vector(-29.875, -15.75, 0), App.Vector(-29.875, -15.55, 0)), False)
sketch12.addGeometry(Part.ArcOfCircle(Part.Circle(App.Vector(-29.275, -15.55, 0), App.Vector(0, 0, 1), 0.6), math.radians(0), math.radians(180)), False)
sketch12.addGeometry(Part.LineSegment(App.Vector(-28.675, -15.55, 0), App.Vector(-28.675, -15.75, 0)), False)
sketch12.addGeometry(Part.LineSegment(App.Vector(-28.675, -15.75, 0), App.Vector(-27.875, -15.75, 0)), False)
sketch12.addGeometry(Part.LineSegment(App.Vector(-27.875, -15.75, 0), App.Vector(-27.875, -15.55, 0)), False)
sketch12.addGeometry(Part.ArcOfCircle(Part.Circle(App.Vector(-27.275, -15.55, 0), App.Vector(0, 0, 1), 0.6), math.radians(0), math.radians(180)), False)
sketch12.addGeometry(Part.LineSegment(App.Vector(-26.675, -15.55, 0), App.Vector(-26.675, -15.75, 0)), False)
sketch12.addGeometry(Part.LineSegment(App.Vector(-26.675, -15.75, 0), App.Vector(-25.875, -15.75, 0)), False)
sketch12.addGeometry(Part.LineSegment(App.Vector(-25.875, -15.75, 0), App.Vector(-25.875, -15.55, 0)), False)
sketch12.addGeometry(Part.ArcOfCircle(Part.Circle(App.Vector(-25.275, -15.55, 0), App.Vector(0, 0, 1), 0.6), math.radians(0), math.radians(180)), False)
sketch12.addGeometry(Part.LineSegment(App.Vector(-24.675, -15.55, 0), App.Vector(-24.675, -15.75, 0)), False)
sketch12.addGeometry(Part.LineSegment(App.Vector(-24.675, -15.75, 0), App.Vector(-23.875, -15.75, 0)), False)
sketch12.addGeometry(Part.LineSegment(App.Vector(-23.875, -15.75, 0), App.Vector(-23.875, -15.55, 0)), False)
sketch12.addGeometry(Part.ArcOfCircle(Part.Circle(App.Vector(-23.275, -15.55, 0), App.Vector(0, 0, 1), 0.6), math.radians(0), math.radians(180)), False)
sketch12.addGeometry(Part.LineSegment(App.Vector(-22.675, -15.55, 0), App.Vector(-22.675, -15.75, 0)), False)
sketch12.addGeometry(Part.LineSegment(App.Vector(-22.675, -15.75, 0), App.Vector(-21.875, -15.75, 0)), False)
sketch12.addConstraint(Sketcher.Constraint("Coincident", 0, 2, 1, 2))
sketch12.addConstraint(Sketcher.Constraint("Tangent", 1, 1, 2, 1))
sketch12.addConstraint(Sketcher.Constraint("Tangent", 2, 2, 3, 2))
sketch12.addConstraint(Sketcher.Constraint("Tangent", 3, 1, 4, 1))
sketch12.addConstraint(Sketcher.Constraint("Coincident", 4, 2, 5, 1))
sketch12.addConstraint(Sketcher.Constraint("Coincident", 5, 2, 6, 1))
sketch12.addConstraint(Sketcher.Constraint("Tangent", 6, 2, 7, 2))
sketch12.addConstraint(Sketcher.Constraint("Tangent", 7, 1, 8, 1))
sketch12.addConstraint(Sketcher.Constraint("Coincident", 8, 2, 9, 1))
sketch12.addConstraint(Sketcher.Constraint("Coincident", 9, 2, 10, 1))
sketch12.addConstraint(Sketcher.Constraint("Tangent", 10, 2, 11, 2))
sketch12.addConstraint(Sketcher.Constraint("Tangent", 11, 1, 12, 1))
sketch12.addConstraint(Sketcher.Constraint("Coincident", 12, 2, 13, 1))
sketch12.addConstraint(Sketcher.Constraint("Coincident", 13, 2, 14, 1))
sketch12.addConstraint(Sketcher.Constraint("Tangent", 14, 2, 15, 2))
sketch12.addConstraint(Sketcher.Constraint("Tangent", 15, 1, 16, 1))
sketch12.addConstraint(Sketcher.Constraint("Coincident", 16, 2, 17, 1))
sketch12.addConstraint(Sketcher.Constraint("Coincident", 17, 2, 18, 1))
sketch12.addConstraint(Sketcher.Constraint("Tangent", 18, 2, 19, 2))
sketch12.addConstraint(Sketcher.Constraint("Tangent", 19, 1, 20, 1))
sketch12.addConstraint(Sketcher.Constraint("Coincident", 20, 2, 21, 1))
sketch12.addConstraint(Sketcher.Constraint("Coincident", 21, 2, 22, 1))
sketch12.addConstraint(Sketcher.Constraint("Tangent", 22, 2, 23, 2))
sketch12.addConstraint(Sketcher.Constraint("Tangent", 23, 1, 24, 1))
sketch12.addConstraint(Sketcher.Constraint("Coincident", 24, 2, 25, 1))
sketch12.addConstraint(Sketcher.Constraint("Coincident", 25, 2, 26, 1))
sketch12.addConstraint(Sketcher.Constraint("Tangent", 26, 2, 27, 2))
sketch12.addConstraint(Sketcher.Constraint("Tangent", 27, 1, 28, 1))
sketch12.addConstraint(Sketcher.Constraint("Coincident", 28, 2, 0, 1))
sketch12.addConstraint(Sketcher.Constraint("Coincident", 29, 2, 30, 1))
sketch12.addConstraint(Sketcher.Constraint("Tangent", 30, 2, 31, 2))
sketch12.addConstraint(Sketcher.Constraint("Tangent", 31, 1, 32, 1))
sketch12.addConstraint(Sketcher.Constraint("Tangent", 32, 2, 33, 2))
sketch12.addConstraint(Sketcher.Constraint("Tangent", 33, 1, 34, 1))
sketch12.addConstraint(Sketcher.Constraint("Coincident", 34, 2, 35, 1))
sketch12.addConstraint(Sketcher.Constraint("Coincident", 35, 2, 36, 1))
sketch12.addConstraint(Sketcher.Constraint("Coincident", 36, 2, 37, 1))
sketch12.addConstraint(Sketcher.Constraint("Coincident", 37, 2, 38, 1))
sketch12.addConstraint(Sketcher.Constraint("Coincident", 38, 2, 29, 1))
sketch12.addConstraint(Sketcher.Constraint("Tangent", 41, 2, 42, 2))
sketch12.addConstraint(Sketcher.Constraint("Tangent", 42, 1, 43, 1))
sketch12.addConstraint(Sketcher.Constraint("Coincident", 43, 2, 44, 1))
sketch12.addConstraint(Sketcher.Constraint("Coincident", 44, 2, 45, 1))
sketch12.addConstraint(Sketcher.Constraint("Tangent", 45, 2, 46, 2))
sketch12.addConstraint(Sketcher.Constraint("Tangent", 46, 1, 47, 1))
sketch12.addConstraint(Sketcher.Constraint("Tangent", 47, 2, 48, 2))
sketch12.addConstraint(Sketcher.Constraint("Coincident", 48, 1, 49, 1))
sketch12.addConstraint(Sketcher.Constraint("Coincident", 49, 2, 50, 1))
sketch12.addConstraint(Sketcher.Constraint("Tangent", 50, 2, 51, 2))
sketch12.addConstraint(Sketcher.Constraint("Tangent", 51, 1, 52, 1))
sketch12.addConstraint(Sketcher.Constraint("Coincident", 52, 2, 53, 1))
sketch12.addConstraint(Sketcher.Constraint("Coincident", 53, 2, 54, 1))
sketch12.addConstraint(Sketcher.Constraint("Tangent", 54, 2, 55, 2))
sketch12.addConstraint(Sketcher.Constraint("Tangent", 55, 1, 56, 1))
sketch12.addConstraint(Sketcher.Constraint("Coincident", 56, 2, 57, 1))
sketch12.addConstraint(Sketcher.Constraint("Coincident", 57, 2, 58, 1))
sketch12.addConstraint(Sketcher.Constraint("Tangent", 58, 2, 59, 2))
sketch12.addConstraint(Sketcher.Constraint("Tangent", 59, 1, 60, 1))
sketch12.addConstraint(Sketcher.Constraint("Coincident", 60, 2, 61, 1))
sketch12.addConstraint(Sketcher.Constraint("Coincident", 61, 2, 62, 1))
sketch12.addConstraint(Sketcher.Constraint("Tangent", 62, 2, 63, 2))
sketch12.addConstraint(Sketcher.Constraint("Tangent", 63, 1, 64, 1))
sketch12.addConstraint(Sketcher.Constraint("Coincident", 64, 2, 65, 1))
sketch12.addConstraint(Sketcher.Constraint("Coincident", 65, 2, 66, 1))
sketch12.addConstraint(Sketcher.Constraint("Tangent", 66, 2, 67, 2))
sketch12.addConstraint(Sketcher.Constraint("Tangent", 67, 1, 68, 1))
sketch12.addConstraint(Sketcher.Constraint("Coincident", 68, 2, 69, 1))
sketch12.addConstraint(Sketcher.Constraint("Coincident", 69, 2, 41, 1))
sketch12.addConstraint(Sketcher.Constraint("Horizontal", 0))
sketch12.addConstraint(Sketcher.Constraint("Horizontal", 2))
sketch12.addConstraint(Sketcher.Constraint("Horizontal", 5))
sketch12.addConstraint(Sketcher.Constraint("Vertical", 6))
sketch12.addConstraint(Sketcher.Constraint("Vertical", 8))
sketch12.addConstraint(Sketcher.Constraint("Horizontal", 9))
sketch12.addConstraint(Sketcher.Constraint("Vertical", 10))
sketch12.addConstraint(Sketcher.Constraint("Vertical", 12))
sketch12.addConstraint(Sketcher.Constraint("Horizontal", 13))
sketch12.addConstraint(Sketcher.Constraint("Vertical", 14))
sketch12.addConstraint(Sketcher.Constraint("Vertical", 16))
sketch12.addConstraint(Sketcher.Constraint("Horizontal", 17))
sketch12.addConstraint(Sketcher.Constraint("Vertical", 18))
sketch12.addConstraint(Sketcher.Constraint("Vertical", 20))
sketch12.addConstraint(Sketcher.Constraint("Horizontal", 21))
sketch12.addConstraint(Sketcher.Constraint("Vertical", 22))
sketch12.addConstraint(Sketcher.Constraint("Vertical", 24))
sketch12.addConstraint(Sketcher.Constraint("Horizontal", 25))
sketch12.addConstraint(Sketcher.Constraint("Vertical", 26))
sketch12.addConstraint(Sketcher.Constraint("Vertical", 28))
sketch12.addConstraint(Sketcher.Constraint("Horizontal", 29))
sketch12.addConstraint(Sketcher.Constraint("Horizontal", 32))
sketch12.addConstraint(Sketcher.Constraint("Horizontal", 35))
sketch12.addConstraint(Sketcher.Constraint("Horizontal", 37))
sketch12.addConstraint(Sketcher.Constraint("Vertical", 41))
sketch12.addConstraint(Sketcher.Constraint("Vertical", 43))
sketch12.addConstraint(Sketcher.Constraint("Horizontal", 44))
sketch12.addConstraint(Sketcher.Constraint("Horizontal", 47))
sketch12.addConstraint(Sketcher.Constraint("Horizontal", 49))
sketch12.addConstraint(Sketcher.Constraint("Vertical", 50))
sketch12.addConstraint(Sketcher.Constraint("Vertical", 52))
sketch12.addConstraint(Sketcher.Constraint("Horizontal", 53))
sketch12.addConstraint(Sketcher.Constraint("Vertical", 54))
sketch12.addConstraint(Sketcher.Constraint("Vertical", 56))
sketch12.addConstraint(Sketcher.Constraint("Horizontal", 57))
sketch12.addConstraint(Sketcher.Constraint("Vertical", 58))
sketch12.addConstraint(Sketcher.Constraint("Vertical", 60))
sketch12.addConstraint(Sketcher.Constraint("Horizontal", 61))
sketch12.addConstraint(Sketcher.Constraint("Vertical", 62))
sketch12.addConstraint(Sketcher.Constraint("Vertical", 64))
sketch12.addConstraint(Sketcher.Constraint("Horizontal", 65))
sketch12.addConstraint(Sketcher.Constraint("Vertical", 66))
sketch12.addConstraint(Sketcher.Constraint("Vertical", 68))
sketch12.addConstraint(Sketcher.Constraint("Horizontal", 69))
sketch12.addConstraint(Sketcher.Constraint("Equal", 7, 11))
sketch12.addConstraint(Sketcher.Constraint("Equal", 11, 15))
sketch12.addConstraint(Sketcher.Constraint("Equal", 15, 19))
sketch12.addConstraint(Sketcher.Constraint("Equal", 19, 23))
sketch12.addConstraint(Sketcher.Constraint("Equal", 23, 27))
sketch12.addConstraint(Sketcher.Constraint("Equal", 1, 31))
sketch12.addConstraint(Sketcher.Constraint("Equal", 31, 33))
sketch12.addConstraint(Sketcher.Constraint("Equal", 39, 40))
sketch12.addConstraint(Sketcher.Constraint("Equal", 27, 42))
sketch12.addConstraint(Sketcher.Constraint("Equal", 3, 46))
sketch12.addConstraint(Sketcher.Constraint("Equal", 33, 48))
sketch12.addConstraint(Sketcher.Constraint("Equal", 42, 51))
sketch12.addConstraint(Sketcher.Constraint("Equal", 51, 55))
sketch12.addConstraint(Sketcher.Constraint("Equal", 55, 59))
sketch12.addConstraint(Sketcher.Constraint("Equal", 59, 63))
sketch12.addConstraint(Sketcher.Constraint("Equal", 63, 67))
sketch12.addConstraint(Sketcher.Constraint("Symmetric", 39, 3, 40, 3, -2))
sketch12.addConstraint(Sketcher.Constraint("Symmetric", 3, 3, 46, 3, -2))
sketch12.addConstraint(Sketcher.Constraint("Symmetric", 30, 2, 33, 1, -2))
sketch12.addConstraint(Sketcher.Constraint("Symmetric", 35, 2, 38, 2, -2))
sketch12.addConstraint(Sketcher.Constraint("Symmetric", 4, 2, 44, 2, -2))
sketch12.addConstraint(Sketcher.Constraint("Symmetric", 0, 2, 48, 1, -2))
sketch12.addConstraint(Sketcher.Constraint("Parallel", 4, 30))
sketch12.addConstraint(Sketcher.Constraint("Horizontal", 7, 3, 11, 3))
sketch12.addConstraint(Sketcher.Constraint("Horizontal", 11, 3, 15, 3))
sketch12.addConstraint(Sketcher.Constraint("Horizontal", 15, 3, 19, 3))
sketch12.addConstraint(Sketcher.Constraint("Horizontal", 19, 3, 23, 3))
sketch12.addConstraint(Sketcher.Constraint("Horizontal", 23, 3, 27, 3))
sketch12.addConstraint(Sketcher.Constraint("Horizontal", 1, 3, 31, 3))
sketch12.addConstraint(Sketcher.Constraint("Horizontal", 33, 3, 39, 3))
sketch12.addConstraint(Sketcher.Constraint("Horizontal", 27, 3, 42, 3))
sketch12.addConstraint(Sketcher.Constraint("Horizontal", 42, 3, 51, 3))
sketch12.addConstraint(Sketcher.Constraint("Horizontal", 51, 3, 55, 3))
sketch12.addConstraint(Sketcher.Constraint("Horizontal", 55, 3, 59, 3))
sketch12.addConstraint(Sketcher.Constraint("Horizontal", 59, 3, 63, 3))
sketch12.addConstraint(Sketcher.Constraint("Horizontal", 63, 3, 67, 3))
sketch12.addConstraint(Sketcher.Constraint("Horizontal", 0, 2, 4, 2))
sketch12.addConstraint(Sketcher.Constraint("Horizontal", 5, 2, 8, 2))
sketch12.addConstraint(Sketcher.Constraint("Horizontal", 9, 2, 12, 2))
sketch12.addConstraint(Sketcher.Constraint("Horizontal", 13, 2, 16, 2))
sketch12.addConstraint(Sketcher.Constraint("Horizontal", 17, 2, 20, 2))
sketch12.addConstraint(Sketcher.Constraint("Horizontal", 21, 2, 24, 2))
sketch12.addConstraint(Sketcher.Constraint("Horizontal", 49, 2, 52, 2))
sketch12.addConstraint(Sketcher.Constraint("Horizontal", 53, 2, 56, 2))
sketch12.addConstraint(Sketcher.Constraint("Horizontal", 57, 2, 60, 2))
sketch12.addConstraint(Sketcher.Constraint("Horizontal", 61, 2, 64, 2))
sketch12.addConstraint(Sketcher.Constraint("Horizontal", 65, 2, 68, 2))
sketch12.addConstraint(Sketcher.Constraint("Equal", 9, 13))
sketch12.addConstraint(Sketcher.Constraint("Equal", 13, 17))
sketch12.addConstraint(Sketcher.Constraint("Equal", 17, 21))
sketch12.addConstraint(Sketcher.Constraint("Equal", 21, 25))
sketch12.addConstraint(Sketcher.Constraint("Equal", 25, 53))
sketch12.addConstraint(Sketcher.Constraint("Equal", 53, 57))
sketch12.addConstraint(Sketcher.Constraint("Equal", 57, 61))
sketch12.addConstraint(Sketcher.Constraint("Equal", 61, 65))
sketch12.addConstraint(Sketcher.Constraint("Equal", 65, 69))
sketch12.addConstraint(Sketcher.Constraint("Equal", 36, 38))
sketch12.addConstraint(Sketcher.Constraint("Diameter", 39, Q("4 mm")))
sketch12.addConstraint(Sketcher.Constraint("Radius", 1, Q("5 mm")))
sketch12.addConstraint(Sketcher.Constraint("Radius", 3, Q("1 mm")))
sketch12.addConstraint(Sketcher.Constraint("Radius", 7, Q("0.6 mm")))
sketch12.addConstraint(Sketcher.Constraint("Angle", 4, Q("42 deg")))
sketch12.addConstraint(Sketcher.Constraint("DistanceX", 9, 1, 9, 2, Q("0.8 mm")))
sketch12.addConstraint(Sketcher.Constraint("DistanceY", 6, 1, 6, 2, Q("0.2 mm")))
sketch12.addConstraint(Sketcher.Constraint("DistanceX", -1, 1, 1, 3, Q("27 mm")))
sketch12.addConstraint(Sketcher.Constraint("DistanceX", -1, 1, 39, 3, Q("10 mm")))
sketch12.addConstraint(Sketcher.Constraint("DistanceX", 0, 1, 0, 2, Q("0.05 mm")))
sketch12.addConstraint(Sketcher.Constraint("DistanceY", 1, 3, -1, 1, Q("16.25 mm")))
sketch12.addConstraint(Sketcher.Constraint("DistanceY", 7, 3, -1, 1, Q("15.55 mm")))
sketch12.addConstraint(Sketcher.Constraint("DistanceY", 29, 2, -1, 1, Q("14.15 mm")))
sketch12.addConstraint(Sketcher.Constraint("DistanceY", 36, 2, -1, 1, Q("11.25 mm")))
sketch12.addConstraint(Sketcher.Constraint("DistanceX", 2, 2, 2, 1, Q("9.91416 mm")))
sketch12.addConstraint(Sketcher.Constraint("DistanceX", 29, 2, 29, 1, Q("11.78105 mm")))
sketch12.addConstraint(Sketcher.Constraint("DistanceX", 37, 1, 37, 2, Q("62.705018 mm")))
sketch12.addConstraint(Sketcher.Constraint("DistanceX", 32, 2, 32, 1, Q("20.340536 mm")))
sketch12.addConstraint(Sketcher.Constraint("DistanceX", 44, 1, 44, 2, Q("0.085943 mm")))
pad8 = body.newObject("PartDesign::Pad", "Pad007")
pad8.Profile = sketch12
pad8.Length = 3
pad8.Reversed = True

doc.recompute()
